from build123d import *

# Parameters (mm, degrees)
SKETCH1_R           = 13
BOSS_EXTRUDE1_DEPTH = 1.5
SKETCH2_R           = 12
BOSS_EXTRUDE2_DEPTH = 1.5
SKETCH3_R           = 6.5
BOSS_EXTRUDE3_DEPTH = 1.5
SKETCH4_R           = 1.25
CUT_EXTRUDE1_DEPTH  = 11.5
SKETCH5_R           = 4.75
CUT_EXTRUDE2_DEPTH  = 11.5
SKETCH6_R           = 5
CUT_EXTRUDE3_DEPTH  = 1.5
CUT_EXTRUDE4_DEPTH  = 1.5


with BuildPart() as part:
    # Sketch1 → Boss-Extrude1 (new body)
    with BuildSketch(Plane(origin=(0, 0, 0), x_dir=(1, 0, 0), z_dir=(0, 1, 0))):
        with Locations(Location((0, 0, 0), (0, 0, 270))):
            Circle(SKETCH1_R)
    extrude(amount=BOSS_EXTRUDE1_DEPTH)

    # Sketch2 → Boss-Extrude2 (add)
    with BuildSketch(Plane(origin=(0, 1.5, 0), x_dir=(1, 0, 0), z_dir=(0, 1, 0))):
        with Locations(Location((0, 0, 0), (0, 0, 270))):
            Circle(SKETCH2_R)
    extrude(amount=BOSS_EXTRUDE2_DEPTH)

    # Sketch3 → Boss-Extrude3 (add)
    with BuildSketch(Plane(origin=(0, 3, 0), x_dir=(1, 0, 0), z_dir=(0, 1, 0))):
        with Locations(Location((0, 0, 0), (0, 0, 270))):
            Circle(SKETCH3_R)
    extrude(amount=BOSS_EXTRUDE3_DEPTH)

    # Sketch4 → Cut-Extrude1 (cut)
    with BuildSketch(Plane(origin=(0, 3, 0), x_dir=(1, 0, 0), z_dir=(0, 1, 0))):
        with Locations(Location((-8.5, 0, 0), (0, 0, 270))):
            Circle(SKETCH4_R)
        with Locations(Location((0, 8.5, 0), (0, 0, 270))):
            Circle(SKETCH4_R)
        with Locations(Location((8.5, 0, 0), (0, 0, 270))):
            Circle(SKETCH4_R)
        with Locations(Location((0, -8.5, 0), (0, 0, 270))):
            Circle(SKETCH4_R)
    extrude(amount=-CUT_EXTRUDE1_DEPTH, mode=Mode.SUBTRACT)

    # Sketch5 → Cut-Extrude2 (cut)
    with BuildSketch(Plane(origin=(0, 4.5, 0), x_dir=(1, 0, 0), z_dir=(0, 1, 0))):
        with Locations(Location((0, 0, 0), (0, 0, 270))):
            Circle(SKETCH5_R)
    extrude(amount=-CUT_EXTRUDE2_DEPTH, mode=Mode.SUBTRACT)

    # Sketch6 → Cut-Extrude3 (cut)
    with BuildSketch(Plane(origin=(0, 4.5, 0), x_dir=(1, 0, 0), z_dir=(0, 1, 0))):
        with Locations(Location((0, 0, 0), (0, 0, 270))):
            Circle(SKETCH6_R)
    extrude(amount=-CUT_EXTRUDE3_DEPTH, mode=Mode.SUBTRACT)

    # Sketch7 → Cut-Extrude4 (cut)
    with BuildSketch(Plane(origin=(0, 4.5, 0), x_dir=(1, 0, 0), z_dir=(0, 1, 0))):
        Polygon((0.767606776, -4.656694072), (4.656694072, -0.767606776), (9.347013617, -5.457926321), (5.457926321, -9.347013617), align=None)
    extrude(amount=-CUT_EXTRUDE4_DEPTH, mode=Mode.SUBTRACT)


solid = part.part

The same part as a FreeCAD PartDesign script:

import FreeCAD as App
import Part
import Sketcher

V = App.Vector
Q = App.Units.Quantity


def add_polygon(sketch, points):
    """Adds a closed chain of lines whose ends are joined by coincident constraints."""
    first, n = sketch.GeometryCount, len(points)
    for a, b in zip(points, points[1:] + points[:1]):
        sketch.addGeometry(Part.LineSegment(App.Vector(*a, 0), App.Vector(*b, 0)), False)
    for i in range(n):
        sketch.addConstraint(Sketcher.Constraint("Coincident", first + i, 2, first + (i + 1) % n, 1))

doc = App.newDocument("Part")
params = doc.addObject("Spreadsheet::Sheet", "Params")
for row, (alias, value) in enumerate([
    ("sketch1_diameter", "26 mm"),
    ("pad1_length", "1.5 mm"),
    ("sketch2_diameter", "24 mm"),
    ("pad2_length", "1.5 mm"),
    ("sketch3_diameter", "13 mm"),
    ("pad3_length", "1.5 mm"),
    ("sketch4_diameter", "2.5 mm"),
    ("pocket1_length", "11.5 mm"),
    ("sketch5_diameter", "9.5 mm"),
    ("pocket2_length", "11.5 mm"),
    ("sketch6_diameter", "10 mm"),
    ("pocket3_length", "1.5 mm"),
    ("sketch7_length", "5.5 mm"),
    ("pocket4_length", "1.5 mm"),
], start=1):
    params.set(f"A{row}", alias)
    params.set(f"B{row}", "=" + value)
    params.setAlias(f"B{row}", alias)

body = doc.addObject("PartDesign::Body", "Body")

sketch1 = body.newObject("Sketcher::SketchObject", "Sketch")
sketch1.AttachmentSupport = (doc.getObject("XZ_Plane"), [""])
sketch1.MapMode = "FlatFace"
sketch1.addGeometry(Part.Circle(V(0, 0, 0), V(0, 0, 1), 13), False)
sketch1.addConstraint([
    Sketcher.Constraint("Coincident", 0, 3, -1, 1),
    Sketcher.Constraint("Diameter", 0, 26.0),
])
sketch1.setExpression("Constraints[1]", "Params.sketch1_diameter")
pad1 = body.newObject("PartDesign::Pad", "Pad")
pad1.Profile = sketch1
pad1.setExpression("Length", "Params.pad1_length")
pad1.Reversed = True

sketch2 = body.newObject("Sketcher::SketchObject", "Sketch001")
sketch2.AttachmentSupport = (doc.getObject("XZ_Plane"), [""])
sketch2.MapMode = "FlatFace"
sketch2.AttachmentOffset = App.Placement(V(0, 0, -1.5), App.Rotation())
sketch2.addGeometry(Part.Circle(V(0, 0, 0), V(0, 0, 1), 12), False)
sketch2.addConstraint([
    Sketcher.Constraint("Coincident", 0, 3, -1, 1),
    Sketcher.Constraint("Diameter", 0, 24.0),
])
sketch2.setExpression("Constraints[1]", "Params.sketch2_diameter")
pad2 = body.newObject("PartDesign::Pad", "Pad001")
pad2.Profile = sketch2
pad2.setExpression("Length", "Params.pad2_length")
pad2.Reversed = True

sketch3 = body.newObject("Sketcher::SketchObject", "Sketch002")
sketch3.AttachmentSupport = (doc.getObject("XZ_Plane"), [""])
sketch3.MapMode = "FlatFace"
sketch3.AttachmentOffset = App.Placement(V(0, 0, -3), App.Rotation())
sketch3.addGeometry(Part.Circle(V(0, 0, 0), V(0, 0, 1), 6), False)
sketch3.addConstraint([
    Sketcher.Constraint("Coincident", 0, 3, -1, 1),
    Sketcher.Constraint("Diameter", 0, 13.0),
])
sketch3.setExpression("Constraints[1]", "Params.sketch3_diameter")
pad3 = body.newObject("PartDesign::Pad", "Pad002")
pad3.Profile = sketch3
pad3.setExpression("Length", "Params.pad3_length")
pad3.Reversed = True

sketch4 = body.newObject("Sketcher::SketchObject", "Sketch003")
sketch4.AttachmentSupport = (doc.getObject("XZ_Plane"), [""])
sketch4.MapMode = "FlatFace"
sketch4.AttachmentOffset = App.Placement(V(0, 0, -3), App.Rotation())
sketch4.addGeometry([
    Part.Circle(V(-8.5, 0, 0), V(0, 0, 1), 1.2),
    Part.Circle(V(0, -8.5, 0), V(0, 0, 1), 1.2),
    Part.Circle(V(8.5, 0, 0), V(0, 0, 1), 1.2),
    Part.Circle(V(0, 8.5, 0), V(0, 0, 1), 1.2),
], False)
sketch4.addConstraint([
    Sketcher.Constraint("Equal", 0, 1),
    Sketcher.Constraint("Equal", 1, 2),
    Sketcher.Constraint("Equal", 2, 3),
    Sketcher.Constraint("Symmetric", 0, 3, 2, 3, -1, 1),
    Sketcher.Constraint("Symmetric", 1, 3, 3, 3, -1, 1),
    Sketcher.Constraint("PointOnObject", 0, 3, -1),
    Sketcher.Constraint("PointOnObject", 1, 3, -2),
    Sketcher.Constraint("Diameter", 0, 2.5),
    Sketcher.Constraint("DistanceX", 0, 3, 2, 3, 17.0),
    Sketcher.Constraint("DistanceY", 1, 3, 3, 3, 17.0),
])
sketch4.setExpression("Constraints[7]", "Params.sketch4_diameter")
pocket1 = body.newObject("PartDesign::Pocket", "Pocket")
pocket1.Profile = sketch4
pocket1.setExpression("Length", "Params.pocket1_length")
pocket1.Reversed = True

sketch5 = body.newObject("Sketcher::SketchObject", "Sketch004")
sketch5.AttachmentSupport = (doc.getObject("XZ_Plane"), [""])
sketch5.MapMode = "FlatFace"
sketch5.AttachmentOffset = App.Placement(V(0, 0, -4.5), App.Rotation())
sketch5.addGeometry(Part.Circle(V(0, 0, 0), V(0, 0, 1), 4.8), False)
sketch5.addConstraint([
    Sketcher.Constraint("Coincident", 0, 3, -1, 1),
    Sketcher.Constraint("Diameter", 0, 9.5),
])
sketch5.setExpression("Constraints[1]", "Params.sketch5_diameter")
pocket2 = body.newObject("PartDesign::Pocket", "Pocket001")
pocket2.Profile = sketch5
pocket2.setExpression("Length", "Params.pocket2_length")
pocket2.Reversed = True

sketch6 = body.newObject("Sketcher::SketchObject", "Sketch005")
sketch6.AttachmentSupport = (doc.getObject("XZ_Plane"), [""])
sketch6.MapMode = "FlatFace"
sketch6.AttachmentOffset = App.Placement(V(0, 0, -4.5), App.Rotation())
sketch6.addGeometry(Part.Circle(V(0, 0, 0), V(0, 0, 1), 5), False)
sketch6.addConstraint([
    Sketcher.Constraint("Coincident", 0, 3, -1, 1),
    Sketcher.Constraint("Diameter", 0, 10.0),
])
sketch6.setExpression("Constraints[1]", "Params.sketch6_diameter")
pocket3 = body.newObject("PartDesign::Pocket", "Pocket002")
pocket3.Profile = sketch6
pocket3.setExpression("Length", "Params.pocket3_length")
pocket3.Reversed = True

sketch7 = body.newObject("Sketcher::SketchObject", "Sketch006")
sketch7.AttachmentSupport = (doc.getObject("XZ_Plane"), [""])
sketch7.MapMode = "FlatFace"
sketch7.AttachmentOffset = App.Placement(V(0, 0, -4.5), App.Rotation())
add_polygon(sketch7, [(5, 1), (1, 5), (5, 9), (9, 5)])
sketch7.addConstraint([
    Sketcher.Constraint("Perpendicular", 0, 1),
    Sketcher.Constraint("Perpendicular", 1, 2),
    Sketcher.Constraint("Perpendicular", 2, 3),
    Sketcher.Constraint("Angle", 0, Q("135 deg")),
    Sketcher.Constraint("Distance", 0, 5.5),
    Sketcher.Constraint("DistanceX", 0, 2, 1, 2, 4.69032),
    Sketcher.Constraint("DistanceX", -1, 1, 0, 2, 0.767607),
    Sketcher.Constraint("DistanceY", -1, 1, 0, 2, 4.656694),
])
sketch7.setExpression("Constraints[8]", "Params.sketch7_length")
pocket4 = body.newObject("PartDesign::Pocket", "Pocket003")
pocket4.Profile = sketch7
pocket4.setExpression("Length", "Params.pocket4_length")
pocket4.Reversed = True

doc.recompute()
